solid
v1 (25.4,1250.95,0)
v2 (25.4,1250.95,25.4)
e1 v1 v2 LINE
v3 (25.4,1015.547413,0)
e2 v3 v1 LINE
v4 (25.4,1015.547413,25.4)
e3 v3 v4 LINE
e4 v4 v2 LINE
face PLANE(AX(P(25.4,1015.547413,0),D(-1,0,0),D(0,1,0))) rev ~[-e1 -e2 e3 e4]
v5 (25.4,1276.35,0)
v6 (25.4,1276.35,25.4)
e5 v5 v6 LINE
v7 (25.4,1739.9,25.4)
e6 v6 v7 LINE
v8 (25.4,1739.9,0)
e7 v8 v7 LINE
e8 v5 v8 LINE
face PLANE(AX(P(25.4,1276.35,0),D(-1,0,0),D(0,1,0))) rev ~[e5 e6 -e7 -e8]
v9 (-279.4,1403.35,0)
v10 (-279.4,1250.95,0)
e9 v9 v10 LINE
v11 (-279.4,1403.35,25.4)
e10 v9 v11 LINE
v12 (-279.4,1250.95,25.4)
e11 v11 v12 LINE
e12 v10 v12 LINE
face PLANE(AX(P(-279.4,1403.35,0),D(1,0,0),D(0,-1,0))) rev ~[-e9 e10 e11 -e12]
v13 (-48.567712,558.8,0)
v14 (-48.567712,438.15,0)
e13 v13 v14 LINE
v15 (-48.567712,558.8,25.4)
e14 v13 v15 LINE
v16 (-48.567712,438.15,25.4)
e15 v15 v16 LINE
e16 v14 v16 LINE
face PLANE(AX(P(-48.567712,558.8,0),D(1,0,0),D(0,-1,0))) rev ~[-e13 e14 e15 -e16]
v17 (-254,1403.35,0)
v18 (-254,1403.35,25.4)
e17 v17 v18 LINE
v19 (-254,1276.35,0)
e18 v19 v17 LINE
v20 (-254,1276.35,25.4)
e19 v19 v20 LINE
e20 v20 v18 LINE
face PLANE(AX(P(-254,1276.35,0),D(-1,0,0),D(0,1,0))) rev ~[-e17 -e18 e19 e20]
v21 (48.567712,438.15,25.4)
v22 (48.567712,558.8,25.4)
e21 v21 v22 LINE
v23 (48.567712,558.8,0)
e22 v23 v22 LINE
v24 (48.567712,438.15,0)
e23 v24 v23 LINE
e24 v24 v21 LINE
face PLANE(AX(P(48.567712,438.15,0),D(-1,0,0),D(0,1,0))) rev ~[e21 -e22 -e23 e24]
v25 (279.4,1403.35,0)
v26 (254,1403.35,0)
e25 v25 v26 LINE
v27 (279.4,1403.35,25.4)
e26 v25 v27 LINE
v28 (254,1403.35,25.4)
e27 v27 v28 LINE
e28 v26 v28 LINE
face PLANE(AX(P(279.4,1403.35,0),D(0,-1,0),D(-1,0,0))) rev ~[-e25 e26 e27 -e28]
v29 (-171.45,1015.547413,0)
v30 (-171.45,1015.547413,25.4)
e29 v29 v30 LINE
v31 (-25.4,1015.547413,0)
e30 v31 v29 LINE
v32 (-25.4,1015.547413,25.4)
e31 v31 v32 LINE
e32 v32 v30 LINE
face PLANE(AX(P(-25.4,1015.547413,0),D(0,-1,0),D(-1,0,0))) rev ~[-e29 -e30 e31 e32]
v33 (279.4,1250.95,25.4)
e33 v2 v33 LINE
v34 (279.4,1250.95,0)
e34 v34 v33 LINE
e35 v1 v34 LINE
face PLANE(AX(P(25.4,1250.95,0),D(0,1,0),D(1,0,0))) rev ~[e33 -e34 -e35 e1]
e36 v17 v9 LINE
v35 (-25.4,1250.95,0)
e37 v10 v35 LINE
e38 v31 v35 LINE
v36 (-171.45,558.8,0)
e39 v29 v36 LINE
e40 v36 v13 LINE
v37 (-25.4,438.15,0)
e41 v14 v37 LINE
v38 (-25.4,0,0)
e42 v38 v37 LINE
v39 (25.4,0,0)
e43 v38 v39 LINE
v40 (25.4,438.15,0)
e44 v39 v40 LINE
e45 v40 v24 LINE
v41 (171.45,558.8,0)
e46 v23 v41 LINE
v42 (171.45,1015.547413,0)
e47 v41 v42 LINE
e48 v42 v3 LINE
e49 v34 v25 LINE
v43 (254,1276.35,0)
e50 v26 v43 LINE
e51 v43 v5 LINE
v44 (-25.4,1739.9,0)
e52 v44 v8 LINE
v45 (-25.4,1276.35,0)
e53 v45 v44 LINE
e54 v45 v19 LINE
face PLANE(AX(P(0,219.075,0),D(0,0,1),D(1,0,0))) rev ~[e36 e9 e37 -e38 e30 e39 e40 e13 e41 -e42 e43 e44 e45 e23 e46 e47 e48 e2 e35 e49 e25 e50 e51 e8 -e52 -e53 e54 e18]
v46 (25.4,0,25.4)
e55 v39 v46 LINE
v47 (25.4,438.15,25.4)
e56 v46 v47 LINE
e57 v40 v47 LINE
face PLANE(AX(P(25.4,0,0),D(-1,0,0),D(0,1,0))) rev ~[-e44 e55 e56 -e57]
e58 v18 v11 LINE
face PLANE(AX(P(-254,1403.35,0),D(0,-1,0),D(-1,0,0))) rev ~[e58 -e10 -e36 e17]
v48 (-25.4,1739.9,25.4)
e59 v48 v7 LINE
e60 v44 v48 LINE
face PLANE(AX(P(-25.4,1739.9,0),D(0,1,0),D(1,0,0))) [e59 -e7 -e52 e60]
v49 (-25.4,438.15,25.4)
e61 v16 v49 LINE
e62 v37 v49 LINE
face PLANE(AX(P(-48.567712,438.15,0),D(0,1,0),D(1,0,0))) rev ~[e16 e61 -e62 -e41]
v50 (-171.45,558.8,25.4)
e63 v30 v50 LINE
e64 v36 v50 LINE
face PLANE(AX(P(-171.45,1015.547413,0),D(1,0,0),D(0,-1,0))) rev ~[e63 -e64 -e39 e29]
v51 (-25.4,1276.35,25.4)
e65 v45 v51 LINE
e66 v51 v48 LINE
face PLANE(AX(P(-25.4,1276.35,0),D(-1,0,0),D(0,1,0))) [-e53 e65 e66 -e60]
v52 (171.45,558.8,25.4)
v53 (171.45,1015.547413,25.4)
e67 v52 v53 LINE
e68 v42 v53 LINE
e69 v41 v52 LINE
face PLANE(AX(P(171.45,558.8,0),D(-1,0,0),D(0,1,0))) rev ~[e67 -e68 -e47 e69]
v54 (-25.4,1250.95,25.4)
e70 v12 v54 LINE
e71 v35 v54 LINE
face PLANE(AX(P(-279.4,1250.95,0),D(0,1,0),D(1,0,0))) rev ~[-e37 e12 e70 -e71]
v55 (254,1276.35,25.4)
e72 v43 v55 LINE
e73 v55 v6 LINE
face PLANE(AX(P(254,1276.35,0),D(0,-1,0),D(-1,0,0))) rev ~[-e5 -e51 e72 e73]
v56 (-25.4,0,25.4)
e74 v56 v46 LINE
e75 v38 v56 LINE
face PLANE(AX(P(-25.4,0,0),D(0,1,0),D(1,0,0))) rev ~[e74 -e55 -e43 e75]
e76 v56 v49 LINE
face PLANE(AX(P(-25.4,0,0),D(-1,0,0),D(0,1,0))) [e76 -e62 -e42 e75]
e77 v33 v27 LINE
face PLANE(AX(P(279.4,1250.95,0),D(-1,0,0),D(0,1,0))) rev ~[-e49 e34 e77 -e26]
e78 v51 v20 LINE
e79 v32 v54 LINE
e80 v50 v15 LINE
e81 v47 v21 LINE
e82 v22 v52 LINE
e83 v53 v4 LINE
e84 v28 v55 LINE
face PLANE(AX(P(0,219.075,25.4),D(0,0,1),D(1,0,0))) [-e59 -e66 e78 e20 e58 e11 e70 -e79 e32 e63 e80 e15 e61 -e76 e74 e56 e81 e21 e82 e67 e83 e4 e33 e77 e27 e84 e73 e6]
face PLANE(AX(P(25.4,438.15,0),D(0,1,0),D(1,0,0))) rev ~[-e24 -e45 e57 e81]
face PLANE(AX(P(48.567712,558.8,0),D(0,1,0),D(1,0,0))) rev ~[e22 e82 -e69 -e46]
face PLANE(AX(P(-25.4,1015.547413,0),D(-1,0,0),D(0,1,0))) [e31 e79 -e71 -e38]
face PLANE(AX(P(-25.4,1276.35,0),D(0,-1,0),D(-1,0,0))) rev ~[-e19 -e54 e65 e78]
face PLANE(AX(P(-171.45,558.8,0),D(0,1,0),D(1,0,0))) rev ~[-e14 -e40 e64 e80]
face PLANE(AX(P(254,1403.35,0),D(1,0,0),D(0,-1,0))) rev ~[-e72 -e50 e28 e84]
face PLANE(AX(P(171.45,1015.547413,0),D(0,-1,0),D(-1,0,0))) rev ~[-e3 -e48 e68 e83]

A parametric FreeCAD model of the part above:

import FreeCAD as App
import Part
import Sketcher

V = App.Vector
Q = App.Units.Quantity

doc = App.newDocument("Part")
body = doc.addObject("PartDesign::Body", "Body")

sketch1 = body.newObject("Sketcher::SketchObject", "Sketch")
sketch1.AttachmentSupport = (doc.getObject("XY_Plane"), [""])
sketch1.MapMode = "FlatFace"
sketch1.addGeometry([
    Part.LineSegment(V(49, 438, 0), V(49, 559, 0)),
    Part.LineSegment(V(49, 559, 0), V(171, 559, 0)),
    Part.LineSegment(V(171, 559, 0), V(171, 1016, 0)),
    Part.LineSegment(V(171, 1016, 0), V(25, 1016, 0)),
    Part.LineSegment(V(25, 1016, 0), V(25, 1251, 0)),
    Part.LineSegment(V(25, 1251, 0), V(279, 1251, 0)),
    Part.LineSegment(V(279, 1251, 0), V(279, 1403, 0)),
    Part.LineSegment(V(279, 1403, 0), V(254, 1403, 0)),
    Part.LineSegment(V(254, 1403, 0), V(254, 1276, 0)),
    Part.LineSegment(V(254, 1276, 0), V(25, 1276, 0)),
    Part.LineSegment(V(25, 1276, 0), V(25, 1740, 0)),
    Part.LineSegment(V(25, 1740, 0), V(-25, 1740, 0)),
    Part.LineSegment(V(-25, 1740, 0), V(-25, 1276, 0)),
    Part.LineSegment(V(-25, 1276, 0), V(-254, 1276, 0)),
    Part.LineSegment(V(-254, 1276, 0), V(-254, 1403, 0)),
    Part.LineSegment(V(-254, 1403, 0), V(-279, 1403, 0)),
    Part.LineSegment(V(-279, 1403, 0), V(-279, 1251, 0)),
    Part.LineSegment(V(-279, 1251, 0), V(-25, 1251, 0)),
    Part.LineSegment(V(-25, 1251, 0), V(-25, 1016, 0)),
    Part.LineSegment(V(-25, 1016, 0), V(-171, 1016, 0)),
    Part.LineSegment(V(-171, 1016, 0), V(-171, 559, 0)),
    Part.LineSegment(V(-171, 559, 0), V(-49, 559, 0)),
    Part.LineSegment(V(-49, 559, 0), V(-49, 438, 0)),
    Part.LineSegment(V(-49, 438, 0), V(-25, 438, 0)),
    Part.LineSegment(V(-25, 438, 0), V(-25, 0, 0)),
    Part.LineSegment(V(-25, 0, 0), V(25, 0, 0)),
    Part.LineSegment(V(25, 0, 0), V(25, 438, 0)),
    Part.LineSegment(V(25, 438, 0), V(49, 438, 0)),
], False)
sketch1.addConstraint([
    Sketcher.Constraint("Coincident", 0, 2, 1, 1),
    Sketcher.Constraint("Coincident", 1, 2, 2, 1),
    Sketcher.Constraint("Coincident", 2, 2, 3, 1),
    Sketcher.Constraint("Coincident", 3, 2, 4, 1),
    Sketcher.Constraint("Coincident", 4, 2, 5, 1),
    Sketcher.Constraint("Coincident", 5, 2, 6, 1),
    Sketcher.Constraint("Coincident", 6, 2, 7, 1),
    Sketcher.Constraint("Coincident", 7, 2, 8, 1),
    Sketcher.Constraint("Coincident", 8, 2, 9, 1),
    Sketcher.Constraint("Coincident", 9, 2, 10, 1),
    Sketcher.Constraint("Coincident", 10, 2, 11, 1),
    Sketcher.Constraint("Coincident", 11, 2, 12, 1),
    Sketcher.Constraint("Coincident", 12, 2, 13, 1),
    Sketcher.Constraint("Coincident", 13, 2, 14, 1),
    Sketcher.Constraint("Coincident", 14, 2, 15, 1),
    Sketcher.Constraint("Coincident", 15, 2, 16, 1),
    Sketcher.Constraint("Coincident", 16, 2, 17, 1),
    Sketcher.Constraint("Coincident", 17, 2, 18, 1),
    Sketcher.Constraint("Coincident", 18, 2, 19, 1),
    Sketcher.Constraint("Coincident", 19, 2, 20, 1),
    Sketcher.Constraint("Coincident", 20, 2, 21, 1),
    Sketcher.Constraint("Coincident", 21, 2, 22, 1),
    Sketcher.Constraint("Coincident", 22, 2, 23, 1),
    Sketcher.Constraint("Coincident", 23, 2, 24, 1),
    Sketcher.Constraint("Coincident", 24, 2, 25, 1),
    Sketcher.Constraint("Coincident", 25, 2, 26, 1),
    Sketcher.Constraint("Coincident", 26, 2, 27, 1),
    Sketcher.Constraint("Coincident", 27, 2, 0, 1),
    Sketcher.Constraint("Vertical", 0),
    Sketcher.Constraint("Horizontal", 1),
    Sketcher.Constraint("Vertical", 2),
    Sketcher.Constraint("Horizontal", 3),
    Sketcher.Constraint("Vertical", 4),
    Sketcher.Constraint("Horizontal", 5),
    Sketcher.Constraint("Vertical", 6),
    Sketcher.Constraint("Horizontal", 7),
    Sketcher.Constraint("Vertical", 8),
    Sketcher.Constraint("Horizontal", 9),
    Sketcher.Constraint("Vertical", 10),
    Sketcher.Constraint("Horizontal", 11),
    Sketcher.Constraint("Vertical", 12),
    Sketcher.Constraint("Horizontal", 13),
    Sketcher.Constraint("Vertical", 14),
    Sketcher.Constraint("Horizontal", 15),
    Sketcher.Constraint("Vertical", 16),
    Sketcher.Constraint("Horizontal", 17),
    Sketcher.Constraint("Vertical", 18),
    Sketcher.Constraint("Horizontal", 19),
    Sketcher.Constraint("Vertical", 20),
    Sketcher.Constraint("Horizontal", 21),
    Sketcher.Constraint("Vertical", 22),
    Sketcher.Constraint("Horizontal", 23),
    Sketcher.Constraint("Vertical", 24),
    Sketcher.Constraint("Horizontal", 25),
    Sketcher.Constraint("Vertical", 26),
    Sketcher.Constraint("Horizontal", 27),
    Sketcher.Constraint("Symmetric", 24, 2, 25, 2, -1, 1),
    Sketcher.Constraint("Symmetric", 9, 2, 12, 2, -2),
    Sketcher.Constraint("Symmetric", 7, 2, 14, 2, -2),
    Sketcher.Constraint("Symmetric", 5, 2, 16, 2, -2),
    Sketcher.Constraint("Symmetric", 3, 2, 18, 2, -2),
    Sketcher.Constraint("Symmetric", 1, 2, 20, 2, -2),
    Sketcher.Constraint("Symmetric", 22, 2, 27, 2, -2),
    Sketcher.Constraint("Vertical", 4, 2, 9, 2),
    Sketcher.Constraint("Vertical", 18, 2, 23, 2),
    Sketcher.Constraint("DistanceX", 5, 1, 5, 2, Q("10 in")),
    Sketcher.Constraint("DistanceX", 7, 2, 7, 1, Q("1 in")),
    Sketcher.Constraint("DistanceX", 11, 2, 11, 1, Q("2 in")),
    Sketcher.Constraint("DistanceY", 6, 1, 6, 2, Q("6 in")),
    Sketcher.Constraint("DistanceY", 8, 2, 8, 1, Q("5 in")),
    Sketcher.Constraint("DistanceY", -1, 1, 0, 2, Q("22 in")),
    Sketcher.Constraint("DistanceX", 3, 2, 3, 1, Q("5.75 in")),
    Sketcher.Constraint("DistanceY", 0, 1, 0, 2, Q("4.75 in")),
    Sketcher.Constraint("DistanceY", 10, 1, 10, 2, Q("18.25 in")),
    Sketcher.Constraint("DistanceY", -1, 1, 10, 2, Q("68.5 in")),
    Sketcher.Constraint("DistanceX", 1, 1, 1, 2, Q("122.882288 mm")),
    Sketcher.Constraint("DistanceY", 2, 1, 2, 2, Q("456.747413 mm")),
])
pad1 = body.newObject("PartDesign::Pad", "Pad")
pad1.Profile = sketch1
pad1.Length = Q("1 in")

doc.recompute()
